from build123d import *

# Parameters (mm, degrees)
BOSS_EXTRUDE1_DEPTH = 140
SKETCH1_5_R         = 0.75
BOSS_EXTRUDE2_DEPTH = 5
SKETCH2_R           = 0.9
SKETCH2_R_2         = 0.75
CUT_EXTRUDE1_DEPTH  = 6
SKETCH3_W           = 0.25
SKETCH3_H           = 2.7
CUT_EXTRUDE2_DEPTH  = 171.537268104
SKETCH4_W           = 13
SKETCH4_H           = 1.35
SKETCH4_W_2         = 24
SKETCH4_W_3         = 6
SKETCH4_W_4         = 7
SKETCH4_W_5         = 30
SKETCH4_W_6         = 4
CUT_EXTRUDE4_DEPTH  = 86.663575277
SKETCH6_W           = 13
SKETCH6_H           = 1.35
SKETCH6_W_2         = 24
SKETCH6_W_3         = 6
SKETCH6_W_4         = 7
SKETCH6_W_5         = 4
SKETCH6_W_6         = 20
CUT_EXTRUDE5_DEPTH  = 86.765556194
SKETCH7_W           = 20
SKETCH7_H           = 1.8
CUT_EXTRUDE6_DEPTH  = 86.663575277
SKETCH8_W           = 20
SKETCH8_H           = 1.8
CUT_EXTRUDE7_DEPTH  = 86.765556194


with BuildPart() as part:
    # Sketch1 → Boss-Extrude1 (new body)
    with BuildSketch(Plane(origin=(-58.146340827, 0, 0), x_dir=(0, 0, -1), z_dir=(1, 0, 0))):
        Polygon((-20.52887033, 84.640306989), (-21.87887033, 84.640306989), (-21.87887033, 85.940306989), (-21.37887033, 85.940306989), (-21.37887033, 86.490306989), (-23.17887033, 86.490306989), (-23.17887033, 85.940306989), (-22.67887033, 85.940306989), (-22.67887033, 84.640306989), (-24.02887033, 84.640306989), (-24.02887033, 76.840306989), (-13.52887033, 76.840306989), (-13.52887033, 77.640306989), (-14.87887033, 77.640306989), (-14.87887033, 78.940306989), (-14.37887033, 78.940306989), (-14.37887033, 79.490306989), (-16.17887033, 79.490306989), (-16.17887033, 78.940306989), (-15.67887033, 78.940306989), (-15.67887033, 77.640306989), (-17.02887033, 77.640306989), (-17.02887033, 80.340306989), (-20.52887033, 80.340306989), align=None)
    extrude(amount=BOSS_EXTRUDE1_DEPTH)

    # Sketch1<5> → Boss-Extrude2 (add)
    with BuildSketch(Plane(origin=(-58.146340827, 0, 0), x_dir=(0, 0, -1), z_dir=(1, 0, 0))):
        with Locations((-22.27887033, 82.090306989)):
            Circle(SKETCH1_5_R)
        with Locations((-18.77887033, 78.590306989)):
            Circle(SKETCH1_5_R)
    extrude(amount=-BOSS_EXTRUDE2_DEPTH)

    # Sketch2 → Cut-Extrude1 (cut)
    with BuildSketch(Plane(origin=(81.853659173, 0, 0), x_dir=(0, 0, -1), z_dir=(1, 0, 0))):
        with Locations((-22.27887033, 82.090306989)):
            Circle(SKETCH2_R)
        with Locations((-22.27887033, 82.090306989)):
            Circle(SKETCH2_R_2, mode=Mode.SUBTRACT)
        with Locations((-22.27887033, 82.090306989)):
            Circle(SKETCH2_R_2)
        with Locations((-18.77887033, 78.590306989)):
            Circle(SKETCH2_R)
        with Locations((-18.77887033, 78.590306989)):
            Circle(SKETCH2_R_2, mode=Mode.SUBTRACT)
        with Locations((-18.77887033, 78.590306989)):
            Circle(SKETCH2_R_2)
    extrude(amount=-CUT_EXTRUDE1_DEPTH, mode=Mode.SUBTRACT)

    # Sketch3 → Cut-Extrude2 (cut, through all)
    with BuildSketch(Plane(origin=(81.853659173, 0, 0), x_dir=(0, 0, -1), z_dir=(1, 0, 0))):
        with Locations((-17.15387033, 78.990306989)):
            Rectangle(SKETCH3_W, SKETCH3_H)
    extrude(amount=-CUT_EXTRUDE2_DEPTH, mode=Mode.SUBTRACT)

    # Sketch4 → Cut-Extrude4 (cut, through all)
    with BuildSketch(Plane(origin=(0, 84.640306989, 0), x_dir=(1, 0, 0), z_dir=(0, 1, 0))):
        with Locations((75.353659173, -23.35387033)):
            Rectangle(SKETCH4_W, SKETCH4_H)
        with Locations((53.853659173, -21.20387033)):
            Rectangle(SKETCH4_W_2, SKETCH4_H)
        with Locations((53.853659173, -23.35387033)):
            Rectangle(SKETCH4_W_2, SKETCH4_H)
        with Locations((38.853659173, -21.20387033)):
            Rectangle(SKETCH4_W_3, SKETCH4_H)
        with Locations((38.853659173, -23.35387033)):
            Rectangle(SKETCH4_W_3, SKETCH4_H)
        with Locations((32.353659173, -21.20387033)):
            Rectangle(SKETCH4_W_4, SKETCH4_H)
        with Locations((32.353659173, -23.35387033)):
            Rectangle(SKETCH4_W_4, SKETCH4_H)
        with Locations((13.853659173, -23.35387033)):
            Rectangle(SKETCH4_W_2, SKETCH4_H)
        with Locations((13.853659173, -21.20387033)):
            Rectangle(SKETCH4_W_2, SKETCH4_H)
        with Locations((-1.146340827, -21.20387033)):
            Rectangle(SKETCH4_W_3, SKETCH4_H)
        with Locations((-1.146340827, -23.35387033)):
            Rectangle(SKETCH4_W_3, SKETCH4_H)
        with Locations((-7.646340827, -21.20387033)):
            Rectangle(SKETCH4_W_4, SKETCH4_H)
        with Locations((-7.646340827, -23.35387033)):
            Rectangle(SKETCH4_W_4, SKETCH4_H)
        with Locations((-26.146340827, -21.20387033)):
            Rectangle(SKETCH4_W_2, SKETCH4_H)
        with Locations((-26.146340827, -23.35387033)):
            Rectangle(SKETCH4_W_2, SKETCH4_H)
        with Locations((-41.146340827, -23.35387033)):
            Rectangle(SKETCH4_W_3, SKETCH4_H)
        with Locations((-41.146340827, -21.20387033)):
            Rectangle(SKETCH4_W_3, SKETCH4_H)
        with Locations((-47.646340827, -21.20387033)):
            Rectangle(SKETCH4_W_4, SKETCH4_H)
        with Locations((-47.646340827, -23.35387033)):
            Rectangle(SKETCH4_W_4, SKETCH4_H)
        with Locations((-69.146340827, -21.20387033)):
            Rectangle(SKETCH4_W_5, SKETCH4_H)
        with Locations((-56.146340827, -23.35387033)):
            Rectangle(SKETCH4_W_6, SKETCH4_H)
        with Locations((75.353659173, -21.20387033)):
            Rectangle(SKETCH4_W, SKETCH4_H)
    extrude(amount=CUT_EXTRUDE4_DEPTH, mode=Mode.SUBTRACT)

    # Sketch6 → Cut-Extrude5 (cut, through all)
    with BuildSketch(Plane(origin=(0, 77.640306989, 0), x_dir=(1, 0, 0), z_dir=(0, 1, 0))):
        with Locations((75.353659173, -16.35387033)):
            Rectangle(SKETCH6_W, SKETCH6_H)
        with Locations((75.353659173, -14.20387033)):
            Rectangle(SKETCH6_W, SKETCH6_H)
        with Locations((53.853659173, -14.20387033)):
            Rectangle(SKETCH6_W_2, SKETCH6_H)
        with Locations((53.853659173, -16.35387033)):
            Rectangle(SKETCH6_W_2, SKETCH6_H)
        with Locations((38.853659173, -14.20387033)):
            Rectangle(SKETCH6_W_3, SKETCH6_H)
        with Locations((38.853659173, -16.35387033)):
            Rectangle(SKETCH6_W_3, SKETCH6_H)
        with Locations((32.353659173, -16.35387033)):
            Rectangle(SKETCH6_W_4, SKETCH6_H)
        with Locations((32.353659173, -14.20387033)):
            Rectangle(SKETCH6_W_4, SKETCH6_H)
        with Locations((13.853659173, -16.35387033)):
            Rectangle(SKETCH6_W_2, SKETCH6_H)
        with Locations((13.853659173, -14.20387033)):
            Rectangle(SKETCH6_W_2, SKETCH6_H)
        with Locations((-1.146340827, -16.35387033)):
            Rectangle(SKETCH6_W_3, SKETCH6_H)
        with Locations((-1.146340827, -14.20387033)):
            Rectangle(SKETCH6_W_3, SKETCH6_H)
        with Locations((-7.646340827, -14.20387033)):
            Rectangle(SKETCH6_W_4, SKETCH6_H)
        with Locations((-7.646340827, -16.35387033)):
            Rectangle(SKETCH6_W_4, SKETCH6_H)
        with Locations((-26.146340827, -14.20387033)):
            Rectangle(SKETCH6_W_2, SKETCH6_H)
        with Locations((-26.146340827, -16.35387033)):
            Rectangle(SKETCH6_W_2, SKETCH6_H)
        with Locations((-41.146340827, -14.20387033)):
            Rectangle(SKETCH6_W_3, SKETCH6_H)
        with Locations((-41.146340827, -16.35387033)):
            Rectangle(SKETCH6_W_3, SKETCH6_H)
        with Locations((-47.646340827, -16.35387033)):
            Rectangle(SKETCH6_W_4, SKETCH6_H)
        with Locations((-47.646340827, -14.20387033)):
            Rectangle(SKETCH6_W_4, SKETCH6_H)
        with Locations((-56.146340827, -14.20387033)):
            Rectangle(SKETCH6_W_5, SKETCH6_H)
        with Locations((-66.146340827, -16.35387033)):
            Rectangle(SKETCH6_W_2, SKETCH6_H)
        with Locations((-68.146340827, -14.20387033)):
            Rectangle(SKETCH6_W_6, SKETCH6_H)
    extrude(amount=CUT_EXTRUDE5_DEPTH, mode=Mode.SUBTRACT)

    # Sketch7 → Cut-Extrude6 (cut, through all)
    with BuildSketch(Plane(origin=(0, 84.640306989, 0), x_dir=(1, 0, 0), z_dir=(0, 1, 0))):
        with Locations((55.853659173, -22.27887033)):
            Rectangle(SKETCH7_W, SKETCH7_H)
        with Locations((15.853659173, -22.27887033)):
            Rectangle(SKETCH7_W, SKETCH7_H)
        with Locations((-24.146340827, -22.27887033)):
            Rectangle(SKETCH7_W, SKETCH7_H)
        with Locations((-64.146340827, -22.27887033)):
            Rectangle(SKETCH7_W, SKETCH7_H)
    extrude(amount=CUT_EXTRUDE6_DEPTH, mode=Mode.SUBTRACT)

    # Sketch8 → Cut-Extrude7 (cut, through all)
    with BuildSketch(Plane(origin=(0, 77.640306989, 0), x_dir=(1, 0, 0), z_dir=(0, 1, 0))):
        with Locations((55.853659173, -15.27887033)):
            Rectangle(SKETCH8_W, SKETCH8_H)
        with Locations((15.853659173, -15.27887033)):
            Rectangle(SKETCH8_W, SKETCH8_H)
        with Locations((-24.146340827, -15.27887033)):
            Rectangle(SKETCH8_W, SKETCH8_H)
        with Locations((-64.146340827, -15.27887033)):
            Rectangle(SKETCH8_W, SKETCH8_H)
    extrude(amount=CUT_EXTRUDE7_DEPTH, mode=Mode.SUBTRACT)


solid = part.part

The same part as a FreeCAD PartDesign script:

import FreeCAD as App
import Part
import Sketcher

V = App.Vector
Q = App.Units.Quantity

doc = App.newDocument("Part")
body = doc.addObject("PartDesign::Body", "Body")

sketch1 = body.newObject("Sketcher::SketchObject", "Sketch")
sketch1.AttachmentSupport = (doc.getObject("YZ_Plane"), [""])
sketch1.MapMode = "FlatFace"
sketch1.AttachmentOffset = App.Placement(V(0, 0, -58.146341), App.Rotation())
sketch1.addGeometry(Part.LineSegment(V(84.64, 20.53, 0), V(84.64, 21.88, 0)), False)
sketch1.addGeometry(Part.LineSegment(V(84.64, 21.88, 0), V(85.94, 21.88, 0)), False)
sketch1.addGeometry(Part.LineSegment(V(85.94, 21.88, 0), V(85.94, 21.38, 0)), False)
sketch1.addGeometry(Part.LineSegment(V(85.94, 21.38, 0), V(86.49, 21.38, 0)), False)
sketch1.addGeometry(Part.LineSegment(V(86.49, 21.38, 0), V(86.49, 23.18, 0)), False)
sketch1.addGeometry(Part.LineSegment(V(86.49, 23.18, 0), V(85.94, 23.18, 0)), False)
sketch1.addGeometry(Part.LineSegment(V(85.94, 23.18, 0), V(85.94, 22.68, 0)), False)
sketch1.addGeometry(Part.LineSegment(V(85.94, 22.68, 0), V(84.64, 22.68, 0)), False)
sketch1.addGeometry(Part.LineSegment(V(84.64, 22.68, 0), V(84.64, 24.03, 0)), False)
sketch1.addGeometry(Part.LineSegment(V(84.64, 24.03, 0), V(76.84, 24.03, 0)), False)
sketch1.addGeometry(Part.LineSegment(V(76.84, 24.03, 0), V(76.84, 13.53, 0)), False)
sketch1.addGeometry(Part.LineSegment(V(76.84, 13.53, 0), V(77.64, 13.53, 0)), False)
sketch1.addGeometry(Part.LineSegment(V(77.64, 13.53, 0), V(77.64, 14.88, 0)), False)
sketch1.addGeometry(Part.LineSegment(V(77.64, 14.88, 0), V(78.94, 14.88, 0)), False)
sketch1.addGeometry(Part.LineSegment(V(78.94, 14.88, 0), V(78.94, 14.38, 0)), False)
sketch1.addGeometry(Part.LineSegment(V(78.94, 14.38, 0), V(79.49, 14.38, 0)), False)
sketch1.addGeometry(Part.LineSegment(V(79.49, 14.38, 0), V(79.49, 16.18, 0)), False)
sketch1.addGeometry(Part.LineSegment(V(79.49, 16.18, 0), V(78.94, 16.18, 0)), False)
sketch1.addGeometry(Part.LineSegment(V(78.94, 16.18, 0), V(78.94, 15.68, 0)), False)
sketch1.addGeometry(Part.LineSegment(V(78.94, 15.68, 0), V(77.64, 15.68, 0)), False)
sketch1.addGeometry(Part.LineSegment(V(77.64, 15.68, 0), V(77.64, 17.03, 0)), False)
sketch1.addGeometry(Part.LineSegment(V(77.64, 17.03, 0), V(80.34, 17.03, 0)), False)
sketch1.addGeometry(Part.LineSegment(V(80.34, 17.03, 0), V(80.34, 20.53, 0)), False)
sketch1.addGeometry(Part.LineSegment(V(80.34, 20.53, 0), V(84.64, 20.53, 0)), False)
sketch1.addConstraint(Sketcher.Constraint("Coincident", 0, 2, 1, 1))
sketch1.addConstraint(Sketcher.Constraint("Coincident", 1, 2, 2, 1))
sketch1.addConstraint(Sketcher.Constraint("Coincident", 2, 2, 3, 1))
sketch1.addConstraint(Sketcher.Constraint("Coincident", 3, 2, 4, 1))
sketch1.addConstraint(Sketcher.Constraint("Coincident", 4, 2, 5, 1))
sketch1.addConstraint(Sketcher.Constraint("Coincident", 5, 2, 6, 1))
sketch1.addConstraint(Sketcher.Constraint("Coincident", 6, 2, 7, 1))
sketch1.addConstraint(Sketcher.Constraint("Coincident", 7, 2, 8, 1))
sketch1.addConstraint(Sketcher.Constraint("Coincident", 8, 2, 9, 1))
sketch1.addConstraint(Sketcher.Constraint("Coincident", 9, 2, 10, 1))
sketch1.addConstraint(Sketcher.Constraint("Coincident", 10, 2, 11, 1))
sketch1.addConstraint(Sketcher.Constraint("Coincident", 11, 2, 12, 1))
sketch1.addConstraint(Sketcher.Constraint("Coincident", 12, 2, 13, 1))
sketch1.addConstraint(Sketcher.Constraint("Coincident", 13, 2, 14, 1))
sketch1.addConstraint(Sketcher.Constraint("Coincident", 14, 2, 15, 1))
sketch1.addConstraint(Sketcher.Constraint("Coincident", 15, 2, 16, 1))
sketch1.addConstraint(Sketcher.Constraint("Coincident", 16, 2, 17, 1))
sketch1.addConstraint(Sketcher.Constraint("Coincident", 17, 2, 18, 1))
sketch1.addConstraint(Sketcher.Constraint("Coincident", 18, 2, 19, 1))
sketch1.addConstraint(Sketcher.Constraint("Coincident", 19, 2, 20, 1))
sketch1.addConstraint(Sketcher.Constraint("Coincident", 20, 2, 21, 1))
sketch1.addConstraint(Sketcher.Constraint("Coincident", 21, 2, 22, 1))
sketch1.addConstraint(Sketcher.Constraint("Coincident", 22, 2, 23, 1))
sketch1.addConstraint(Sketcher.Constraint("Coincident", 23, 2, 0, 1))
sketch1.addConstraint(Sketcher.Constraint("Vertical", 0))
sketch1.addConstraint(Sketcher.Constraint("Horizontal", 1))
sketch1.addConstraint(Sketcher.Constraint("Vertical", 2))
sketch1.addConstraint(Sketcher.Constraint("Horizontal", 3))
sketch1.addConstraint(Sketcher.Constraint("Vertical", 4))
sketch1.addConstraint(Sketcher.Constraint("Horizontal", 5))
sketch1.addConstraint(Sketcher.Constraint("Vertical", 6))
sketch1.addConstraint(Sketcher.Constraint("Horizontal", 7))
sketch1.addConstraint(Sketcher.Constraint("Vertical", 8))
sketch1.addConstraint(Sketcher.Constraint("Horizontal", 9))
sketch1.addConstraint(Sketcher.Constraint("Vertical", 10))
sketch1.addConstraint(Sketcher.Constraint("Horizontal", 11))
sketch1.addConstraint(Sketcher.Constraint("Vertical", 12))
sketch1.addConstraint(Sketcher.Constraint("Horizontal", 13))
sketch1.addConstraint(Sketcher.Constraint("Vertical", 14))
sketch1.addConstraint(Sketcher.Constraint("Horizontal", 15))
sketch1.addConstraint(Sketcher.Constraint("Vertical", 16))
sketch1.addConstraint(Sketcher.Constraint("Horizontal", 17))
sketch1.addConstraint(Sketcher.Constraint("Vertical", 18))
sketch1.addConstraint(Sketcher.Constraint("Horizontal", 19))
sketch1.addConstraint(Sketcher.Constraint("Vertical", 20))
sketch1.addConstraint(Sketcher.Constraint("Horizontal", 21))
sketch1.addConstraint(Sketcher.Constraint("Vertical", 22))
sketch1.addConstraint(Sketcher.Constraint("Horizontal", 23))
sketch1.addConstraint(Sketcher.Constraint("Vertical", 2, 2, 5, 2))
sketch1.addConstraint(Sketcher.Constraint("Vertical", 0, 2, 7, 2))
sketch1.addConstraint(Sketcher.Constraint("Vertical", 14, 2, 17, 2))
sketch1.addConstraint(Sketcher.Constraint("Vertical", 12, 2, 19, 2))
sketch1.addConstraint(Sketcher.Constraint("Equal", 7, 13))
sketch1.addConstraint(Sketcher.Constraint("Equal", 5, 15))
sketch1.addConstraint(Sketcher.Constraint("Equal", 2, 6))
sketch1.addConstraint(Sketcher.Constraint("Equal", 0, 8))
sketch1.addConstraint(Sketcher.Constraint("Equal", 8, 12))
sketch1.addConstraint(Sketcher.Constraint("Equal", 6, 14))
sketch1.addConstraint(Sketcher.Constraint("Equal", 4, 16))
sketch1.addConstraint(Sketcher.Constraint("Equal", 14, 18))
sketch1.addConstraint(Sketcher.Constraint("Equal", 12, 20))
sketch1.addConstraint(Sketcher.Constraint("DistanceX", 1, 1, 1, 2, Q("1.3 mm")))
sketch1.addConstraint(Sketcher.Constraint("DistanceX", 9, 2, 9, 1, Q("7.8 mm")))
sketch1.addConstraint(Sketcher.Constraint("DistanceX", 11, 1, 11, 2, Q("0.8 mm")))
sketch1.addConstraint(Sketcher.Constraint("DistanceX", 21, 1, 21, 2, Q("2.7 mm")))
sketch1.addConstraint(Sketcher.Constraint("DistanceY", 2, 2, 2, 1, Q("0.5 mm")))
sketch1.addConstraint(Sketcher.Constraint("DistanceY", 4, 1, 4, 2, Q("1.8 mm")))
sketch1.addConstraint(Sketcher.Constraint("DistanceY", 10, 2, 10, 1, Q("10.5 mm")))
sketch1.addConstraint(Sketcher.Constraint("DistanceY", 22, 1, 22, 2, Q("3.5 mm")))
sketch1.addConstraint(Sketcher.Constraint("DistanceX", 3, 1, 3, 2, Q("0.55 mm")))
sketch1.addConstraint(Sketcher.Constraint("DistanceY", -1, 1, 0, 2, Q("21.87887 mm")))
sketch1.addConstraint(Sketcher.Constraint("DistanceX", -1, 1, 0, 2, Q("84.640307 mm")))
pad1 = body.newObject("PartDesign::Pad", "Pad")
pad1.Profile = sketch1
pad1.Length = 140

sketch2 = body.newObject("Sketcher::SketchObject", "Sketch001")
sketch2.AttachmentSupport = (doc.getObject("YZ_Plane"), [""])
sketch2.MapMode = "FlatFace"
sketch2.AttachmentOffset = App.Placement(V(0, 0, -58.146341), App.Rotation())
sketch2.addGeometry(Part.Circle(V(82.1, 22.3, 0), V(0, 0, 1), 0.8), False)
sketch2.addGeometry(Part.Circle(V(78.6, 18.8, 0), V(0, 0, 1), 0.8), False)
sketch2.addConstraint(Sketcher.Constraint("Equal", 0, 1))
sketch2.addConstraint(Sketcher.Constraint("Diameter", 0, Q("1.5 mm")))
sketch2.addConstraint(Sketcher.Constraint("DistanceX", 1, 3, 0, 3, Q("3.5 mm")))
sketch2.addConstraint(Sketcher.Constraint("DistanceY", 1, 3, 0, 3, Q("3.5 mm")))
sketch2.addConstraint(Sketcher.Constraint("DistanceY", -1, 1, 0, 3, Q("22.27887 mm")))
sketch2.addConstraint(Sketcher.Constraint("DistanceX", -1, 1, 0, 3, Q("82.090307 mm")))
pad2 = body.newObject("PartDesign::Pad", "Pad001")
pad2.Profile = sketch2
pad2.Length = 5
pad2.Reversed = True

sketch3 = body.newObject("Sketcher::SketchObject", "Sketch002")
sketch3.AttachmentSupport = (doc.getObject("YZ_Plane"), [""])
sketch3.MapMode = "FlatFace"
sketch3.AttachmentOffset = App.Placement(V(0, 0, 81.853659), App.Rotation())
sketch3.addGeometry(Part.Circle(V(82.1, 22.3, 0), V(0, 0, 1), 0.9), False)
sketch3.addGeometry(Part.Circle(V(78.6, 18.8, 0), V(0, 0, 1), 0.9), False)
sketch3.addConstraint(Sketcher.Constraint("Equal", 0, 1))
sketch3.addConstraint(Sketcher.Constraint("Diameter", 0, Q("1.8 mm")))
sketch3.addConstraint(Sketcher.Constraint("DistanceX", 1, 3, 0, 3, Q("3.5 mm")))
sketch3.addConstraint(Sketcher.Constraint("DistanceY", 1, 3, 0, 3, Q("3.5 mm")))
sketch3.addConstraint(Sketcher.Constraint("DistanceY", -1, 1, 0, 3, Q("22.27887 mm")))
sketch3.addConstraint(Sketcher.Constraint("DistanceX", -1, 1, 0, 3, Q("82.090307 mm")))
pocket1 = body.newObject("PartDesign::Pocket", "Pocket")
pocket1.Profile = sketch3
pocket1.Length = 6

sketch4 = body.newObject("Sketcher::SketchObject", "Sketch003")
sketch4.AttachmentSupport = (doc.getObject("YZ_Plane"), [""])
sketch4.MapMode = "FlatFace"
sketch4.AttachmentOffset = App.Placement(V(0, 0, 81.853659), App.Rotation())
sketch4.addGeometry(Part.LineSegment(V(80.34, 17.28, 0), V(77.64, 17.28, 0)), False)
sketch4.addGeometry(Part.LineSegment(V(77.64, 17.28, 0), V(77.64, 17.03, 0)), False)
sketch4.addGeometry(Part.LineSegment(V(77.64, 17.03, 0), V(80.34, 17.03, 0)), False)
sketch4.addGeometry(Part.LineSegment(V(80.34, 17.03, 0), V(80.34, 17.28, 0)), False)
sketch4.addConstraint(Sketcher.Constraint("Coincident", 0, 2, 1, 1))
sketch4.addConstraint(Sketcher.Constraint("Coincident", 1, 2, 2, 1))
sketch4.addConstraint(Sketcher.Constraint("Coincident", 2, 2, 3, 1))
sketch4.addConstraint(Sketcher.Constraint("Coincident", 3, 2, 0, 1))
sketch4.addConstraint(Sketcher.Constraint("Horizontal", 0))
sketch4.addConstraint(Sketcher.Constraint("Vertical", 1))
sketch4.addConstraint(Sketcher.Constraint("Horizontal", 2))
sketch4.addConstraint(Sketcher.Constraint("Vertical", 3))
sketch4.addConstraint(Sketcher.Constraint("DistanceX", 0, 2, 0, 1, Q("2.7 mm")))
sketch4.addConstraint(Sketcher.Constraint("DistanceY", 1, 2, 1, 1, Q("0.25 mm")))
sketch4.addConstraint(Sketcher.Constraint("DistanceY", -1, 1, 0, 2, Q("17.27887 mm")))
sketch4.addConstraint(Sketcher.Constraint("DistanceX", -1, 1, 0, 2, Q("77.640307 mm")))
pocket2 = body.newObject("PartDesign::Pocket", "Pocket001")
pocket2.Profile = sketch4
pocket2.Type = "ThroughAll"

sketch5 = body.newObject("Sketcher::SketchObject", "Sketch004")
sketch5.AttachmentSupport = (doc.getObject("XZ_Plane"), [""])
sketch5.MapMode = "FlatFace"
sketch5.AttachmentOffset = App.Placement(V(0, 0, -84.640307), App.Rotation())
sketch5.addGeometry(Part.LineSegment(V(68.9, 22.7, 0), V(68.9, 24, 0)), False)
sketch5.addGeometry(Part.LineSegment(V(68.9, 24, 0), V(81.9, 24, 0)), False)
sketch5.addGeometry(Part.LineSegment(V(81.9, 24, 0), V(81.9, 22.7, 0)), False)
sketch5.addGeometry(Part.LineSegment(V(81.9, 22.7, 0), V(68.9, 22.7, 0)), False)
sketch5.addGeometry(Part.LineSegment(V(65.9, 21.9, 0), V(65.9, 20.5, 0)), False)
sketch5.addGeometry(Part.LineSegment(V(65.9, 20.5, 0), V(28.9, 20.5, 0)), False)
sketch5.addGeometry(Part.LineSegment(V(28.9, 20.5, 0), V(28.9, 21.9, 0)), False)
sketch5.addGeometry(Part.LineSegment(V(28.9, 21.9, 0), V(65.9, 21.9, 0)), False)
sketch5.addGeometry(Part.LineSegment(V(65.9, 24, 0), V(65.9, 22.7, 0)), False)
sketch5.addGeometry(Part.LineSegment(V(65.9, 22.7, 0), V(28.9, 22.7, 0)), False)
sketch5.addGeometry(Part.LineSegment(V(28.9, 22.7, 0), V(28.9, 24, 0)), False)
sketch5.addGeometry(Part.LineSegment(V(28.9, 24, 0), V(65.9, 24, 0)), False)
sketch5.addGeometry(Part.LineSegment(V(25.9, 24, 0), V(25.9, 22.7, 0)), False)
sketch5.addGeometry(Part.LineSegment(V(25.9, 22.7, 0), V(-11.1, 22.7, 0)), False)
sketch5.addGeometry(Part.LineSegment(V(-11.1, 22.7, 0), V(-11.1, 24, 0)), False)
sketch5.addGeometry(Part.LineSegment(V(-11.1, 24, 0), V(25.9, 24, 0)), False)
sketch5.addGeometry(Part.LineSegment(V(25.9, 21.9, 0), V(25.9, 20.5, 0)), False)
sketch5.addGeometry(Part.LineSegment(V(25.9, 20.5, 0), V(-11.1, 20.5, 0)), False)
sketch5.addGeometry(Part.LineSegment(V(-11.1, 20.5, 0), V(-11.1, 21.9, 0)), False)
sketch5.addGeometry(Part.LineSegment(V(-11.1, 21.9, 0), V(25.9, 21.9, 0)), False)
sketch5.addGeometry(Part.LineSegment(V(-14.1, 21.9, 0), V(-14.1, 20.5, 0)), False)
sketch5.addGeometry(Part.LineSegment(V(-14.1, 20.5, 0), V(-51.1, 20.5, 0)), False)
sketch5.addGeometry(Part.LineSegment(V(-51.1, 20.5, 0), V(-51.1, 21.9, 0)), False)
sketch5.addGeometry(Part.LineSegment(V(-51.1, 21.9, 0), V(-14.1, 21.9, 0)), False)
sketch5.addGeometry(Part.LineSegment(V(-14.1, 24, 0), V(-14.1, 22.7, 0)), False)
sketch5.addGeometry(Part.LineSegment(V(-14.1, 22.7, 0), V(-51.1, 22.7, 0)), False)
sketch5.addGeometry(Part.LineSegment(V(-51.1, 22.7, 0), V(-51.1, 24, 0)), False)
sketch5.addGeometry(Part.LineSegment(V(-51.1, 24, 0), V(-14.1, 24, 0)), False)
sketch5.addGeometry(Part.LineSegment(V(-84.1, 20.5, 0), V(-84.1, 21.9, 0)), False)
sketch5.addGeometry(Part.LineSegment(V(-84.1, 21.9, 0), V(-54.1, 21.9, 0)), False)
sketch5.addGeometry(Part.LineSegment(V(-54.1, 21.9, 0), V(-54.1, 20.5, 0)), False)
sketch5.addGeometry(Part.LineSegment(V(-54.1, 20.5, 0), V(-84.1, 20.5, 0)), False)
sketch5.addGeometry(Part.LineSegment(V(-58.1, 22.7, 0), V(-58.1, 24, 0)), False)
sketch5.addGeometry(Part.LineSegment(V(-58.1, 24, 0), V(-54.1, 24, 0)), False)
sketch5.addGeometry(Part.LineSegment(V(-54.1, 24, 0), V(-54.1, 22.7, 0)), False)
sketch5.addGeometry(Part.LineSegment(V(-54.1, 22.7, 0), V(-58.1, 22.7, 0)), False)
sketch5.addGeometry(Part.LineSegment(V(68.9, 20.5, 0), V(68.9, 21.9, 0)), False)
sketch5.addGeometry(Part.LineSegment(V(68.9, 21.9, 0), V(81.9, 21.9, 0)), False)
sketch5.addGeometry(Part.LineSegment(V(81.9, 21.9, 0), V(81.9, 20.5, 0)), False)
sketch5.addGeometry(Part.LineSegment(V(81.9, 20.5, 0), V(68.9, 20.5, 0)), False)
sketch5.addConstraint(Sketcher.Constraint("Coincident", 0, 2, 1, 1))
sketch5.addConstraint(Sketcher.Constraint("Coincident", 1, 2, 2, 1))
sketch5.addConstraint(Sketcher.Constraint("Coincident", 2, 2, 3, 1))
sketch5.addConstraint(Sketcher.Constraint("Coincident", 3, 2, 0, 1))
sketch5.addConstraint(Sketcher.Constraint("Coincident", 4, 2, 5, 1))
sketch5.addConstraint(Sketcher.Constraint("Coincident", 5, 2, 6, 1))
sketch5.addConstraint(Sketcher.Constraint("Coincident", 6, 2, 7, 1))
sketch5.addConstraint(Sketcher.Constraint("Coincident", 7, 2, 4, 1))
sketch5.addConstraint(Sketcher.Constraint("Coincident", 8, 2, 9, 1))
sketch5.addConstraint(Sketcher.Constraint("Coincident", 9, 2, 10, 1))
sketch5.addConstraint(Sketcher.Constraint("Coincident", 10, 2, 11, 1))
sketch5.addConstraint(Sketcher.Constraint("Coincident", 11, 2, 8, 1))
sketch5.addConstraint(Sketcher.Constraint("Coincident", 12, 2, 13, 1))
sketch5.addConstraint(Sketcher.Constraint("Coincident", 13, 2, 14, 1))
sketch5.addConstraint(Sketcher.Constraint("Coincident", 14, 2, 15, 1))
sketch5.addConstraint(Sketcher.Constraint("Coincident", 15, 2, 12, 1))
sketch5.addConstraint(Sketcher.Constraint("Coincident", 16, 2, 17, 1))
sketch5.addConstraint(Sketcher.Constraint("Coincident", 17, 2, 18, 1))
sketch5.addConstraint(Sketcher.Constraint("Coincident", 18, 2, 19, 1))
sketch5.addConstraint(Sketcher.Constraint("Coincident", 19, 2, 16, 1))
sketch5.addConstraint(Sketcher.Constraint("Coincident", 20, 2, 21, 1))
sketch5.addConstraint(Sketcher.Constraint("Coincident", 21, 2, 22, 1))
sketch5.addConstraint(Sketcher.Constraint("Coincident", 22, 2, 23, 1))
sketch5.addConstraint(Sketcher.Constraint("Coincident", 23, 2, 20, 1))
sketch5.addConstraint(Sketcher.Constraint("Coincident", 24, 2, 25, 1))
sketch5.addConstraint(Sketcher.Constraint("Coincident", 25, 2, 26, 1))
sketch5.addConstraint(Sketcher.Constraint("Coincident", 26, 2, 27, 1))
sketch5.addConstraint(Sketcher.Constraint("Coincident", 27, 2, 24, 1))
sketch5.addConstraint(Sketcher.Constraint("Coincident", 28, 2, 29, 1))
sketch5.addConstraint(Sketcher.Constraint("Coincident", 29, 2, 30, 1))
sketch5.addConstraint(Sketcher.Constraint("Coincident", 30, 2, 31, 1))
sketch5.addConstraint(Sketcher.Constraint("Coincident", 31, 2, 28, 1))
sketch5.addConstraint(Sketcher.Constraint("Coincident", 32, 2, 33, 1))
sketch5.addConstraint(Sketcher.Constraint("Coincident", 33, 2, 34, 1))
sketch5.addConstraint(Sketcher.Constraint("Coincident", 34, 2, 35, 1))
sketch5.addConstraint(Sketcher.Constraint("Coincident", 35, 2, 32, 1))
sketch5.addConstraint(Sketcher.Constraint("Coincident", 36, 2, 37, 1))
sketch5.addConstraint(Sketcher.Constraint("Coincident", 37, 2, 38, 1))
sketch5.addConstraint(Sketcher.Constraint("Coincident", 38, 2, 39, 1))
sketch5.addConstraint(Sketcher.Constraint("Coincident", 39, 2, 36, 1))
sketch5.addConstraint(Sketcher.Constraint("Vertical", 0))
sketch5.addConstraint(Sketcher.Constraint("Horizontal", 1))
sketch5.addConstraint(Sketcher.Constraint("Vertical", 2))
sketch5.addConstraint(Sketcher.Constraint("Horizontal", 3))
sketch5.addConstraint(Sketcher.Constraint("Vertical", 4))
sketch5.addConstraint(Sketcher.Constraint("Horizontal", 5))
sketch5.addConstraint(Sketcher.Constraint("Vertical", 6))
sketch5.addConstraint(Sketcher.Constraint("Horizontal", 7))
sketch5.addConstraint(Sketcher.Constraint("Vertical", 8))
sketch5.addConstraint(Sketcher.Constraint("Horizontal", 9))
sketch5.addConstraint(Sketcher.Constraint("Vertical", 10))
sketch5.addConstraint(Sketcher.Constraint("Horizontal", 11))
sketch5.addConstraint(Sketcher.Constraint("Vertical", 12))
sketch5.addConstraint(Sketcher.Constraint("Horizontal", 13))
sketch5.addConstraint(Sketcher.Constraint("Vertical", 14))
sketch5.addConstraint(Sketcher.Constraint("Horizontal", 15))
sketch5.addConstraint(Sketcher.Constraint("Vertical", 16))
sketch5.addConstraint(Sketcher.Constraint("Horizontal", 17))
sketch5.addConstraint(Sketcher.Constraint("Vertical", 18))
sketch5.addConstraint(Sketcher.Constraint("Horizontal", 19))
sketch5.addConstraint(Sketcher.Constraint("Vertical", 20))
sketch5.addConstraint(Sketcher.Constraint("Horizontal", 21))
sketch5.addConstraint(Sketcher.Constraint("Vertical", 22))
sketch5.addConstraint(Sketcher.Constraint("Horizontal", 23))
sketch5.addConstraint(Sketcher.Constraint("Vertical", 24))
sketch5.addConstraint(Sketcher.Constraint("Horizontal", 25))
sketch5.addConstraint(Sketcher.Constraint("Vertical", 26))
sketch5.addConstraint(Sketcher.Constraint("Horizontal", 27))
sketch5.addConstraint(Sketcher.Constraint("Vertical", 28))
sketch5.addConstraint(Sketcher.Constraint("Horizontal", 29))
sketch5.addConstraint(Sketcher.Constraint("Vertical", 30))
sketch5.addConstraint(Sketcher.Constraint("Horizontal", 31))
sketch5.addConstraint(Sketcher.Constraint("Vertical", 32))
sketch5.addConstraint(Sketcher.Constraint("Horizontal", 33))
sketch5.addConstraint(Sketcher.Constraint("Vertical", 34))
sketch5.addConstraint(Sketcher.Constraint("Horizontal", 35))
sketch5.addConstraint(Sketcher.Constraint("Vertical", 36))
sketch5.addConstraint(Sketcher.Constraint("Horizontal", 37))
sketch5.addConstraint(Sketcher.Constraint("Vertical", 38))
sketch5.addConstraint(Sketcher.Constraint("Horizontal", 39))
sketch5.addConstraint(Sketcher.Constraint("Horizontal", 3, 2, 8, 2))
sketch5.addConstraint(Sketcher.Constraint("Horizontal", 1, 2, 10, 2))
sketch5.addConstraint(Sketcher.Constraint("Horizontal", 9, 2, 12, 2))
sketch5.addConstraint(Sketcher.Constraint("Horizontal", 11, 2, 14, 2))
sketch5.addConstraint(Sketcher.Constraint("Horizontal", 5, 2, 16, 2))
sketch5.addConstraint(Sketcher.Constraint("Horizontal", 7, 2, 18, 2))
sketch5.addConstraint(Sketcher.Constraint("Horizontal", 17, 2, 20, 2))
sketch5.addConstraint(Sketcher.Constraint("Horizontal", 19, 2, 22, 2))
sketch5.addConstraint(Sketcher.Constraint("Horizontal", 13, 2, 24, 2))
sketch5.addConstraint(Sketcher.Constraint("Horizontal", 15, 2, 26, 2))
sketch5.addConstraint(Sketcher.Constraint("Horizontal", 23, 2, 28, 2))
sketch5.addConstraint(Sketcher.Constraint("Horizontal", 21, 2, 30, 2))
sketch5.addConstraint(Sketcher.Constraint("Horizontal", 27, 2, 32, 2))
sketch5.addConstraint(Sketcher.Constraint("Horizontal", 25, 2, 34, 2))
sketch5.addConstraint(Sketcher.Constraint("Horizontal", 29, 2, 36, 2))
sketch5.addConstraint(Sketcher.Constraint("Horizontal", 31, 2, 38, 2))
sketch5.addConstraint(Sketcher.Constraint("Vertical", 7, 2, 8, 2))
sketch5.addConstraint(Sketcher.Constraint("Vertical", 6, 2, 9, 2))
sketch5.addConstraint(Sketcher.Constraint("Vertical", 15, 2, 16, 2))
sketch5.addConstraint(Sketcher.Constraint("Vertical", 14, 2, 17, 2))
sketch5.addConstraint(Sketcher.Constraint("Vertical", 23, 2, 24, 2))
sketch5.addConstraint(Sketcher.Constraint("Vertical", 22, 2, 25, 2))
sketch5.addConstraint(Sketcher.Constraint("Vertical", 30, 2, 33, 2))
sketch5.addConstraint(Sketcher.Constraint("Vertical", 3, 2, 36, 2))
sketch5.addConstraint(Sketcher.Constraint("Vertical", 2, 2, 37, 2))
sketch5.addConstraint(Sketcher.Constraint("Equal", 11, 13))
sketch5.addConstraint(Sketcher.Constraint("Equal", 19, 21))
sketch5.addConstraint(Sketcher.Constraint("Equal", 2, 4))
sketch5.addConstraint(Sketcher.Constraint("DistanceX", 1, 1, 1, 2, Q("13 mm")))
sketch5.addConstraint(Sketcher.Constraint("DistanceX", 5, 2, 5, 1, Q("37 mm")))
sketch5.addConstraint(Sketcher.Constraint("DistanceX", 29, 1, 29, 2, Q("30 mm")))
sketch5.addConstraint(Sketcher.Constraint("DistanceX", 33, 1, 33, 2, Q("4 mm")))
sketch5.addConstraint(Sketcher.Constraint("DistanceX", 4, 2, 3, 2, Q("3 mm")))
sketch5.addConstraint(Sketcher.Constraint("DistanceX", 12, 2, 9, 2, Q("3 mm")))
sketch5.addConstraint(Sketcher.Constraint("DistanceX", 20, 2, 17, 2, Q("3 mm")))
sketch5.addConstraint(Sketcher.Constraint("DistanceX", 28, 2, 22, 2, Q("33 mm")))
sketch5.addConstraint(Sketcher.Constraint("DistanceY", 0, 1, 0, 2, Q("1.35 mm")))
sketch5.addConstraint(Sketcher.Constraint("DistanceY", 4, 2, 0, 2, Q("3.5 mm")))
sketch5.addConstraint(Sketcher.Constraint("DistanceX", -1, 1, 0, 2, Q("68.853659 mm")))
sketch5.addConstraint(Sketcher.Constraint("DistanceY", -1, 1, 0, 2, Q("24.02887 mm")))
pocket3 = body.newObject("PartDesign::Pocket", "Pocket002")
pocket3.Profile = sketch5
pocket3.Type = "ThroughAll"

sketch6 = body.newObject("Sketcher::SketchObject", "Sketch005")
sketch6.AttachmentSupport = (doc.getObject("XZ_Plane"), [""])
sketch6.MapMode = "FlatFace"
sketch6.AttachmentOffset = App.Placement(V(0, 0, -77.640307), App.Rotation())
sketch6.addGeometry(Part.LineSegment(V(68.9, 15.7, 0), V(68.9, 17, 0)), False)
sketch6.addGeometry(Part.LineSegment(V(68.9, 17, 0), V(81.9, 17, 0)), False)
sketch6.addGeometry(Part.LineSegment(V(81.9, 17, 0), V(81.9, 15.7, 0)), False)
sketch6.addGeometry(Part.LineSegment(V(81.9, 15.7, 0), V(68.9, 15.7, 0)), False)
sketch6.addGeometry(Part.LineSegment(V(68.9, 13.5, 0), V(68.9, 14.9, 0)), False)
sketch6.addGeometry(Part.LineSegment(V(68.9, 14.9, 0), V(81.9, 14.9, 0)), False)
sketch6.addGeometry(Part.LineSegment(V(81.9, 14.9, 0), V(81.9, 13.5, 0)), False)
sketch6.addGeometry(Part.LineSegment(V(81.9, 13.5, 0), V(68.9, 13.5, 0)), False)
sketch6.addGeometry(Part.LineSegment(V(65.9, 14.9, 0), V(65.9, 13.5, 0)), False)
sketch6.addGeometry(Part.LineSegment(V(65.9, 13.5, 0), V(28.9, 13.5, 0)), False)
sketch6.addGeometry(Part.LineSegment(V(28.9, 13.5, 0), V(28.9, 14.9, 0)), False)
sketch6.addGeometry(Part.LineSegment(V(28.9, 14.9, 0), V(65.9, 14.9, 0)), False)
sketch6.addGeometry(Part.LineSegment(V(65.9, 17, 0), V(65.9, 15.7, 0)), False)
sketch6.addGeometry(Part.LineSegment(V(65.9, 15.7, 0), V(28.9, 15.7, 0)), False)
sketch6.addGeometry(Part.LineSegment(V(28.9, 15.7, 0), V(28.9, 17, 0)), False)
sketch6.addGeometry(Part.LineSegment(V(28.9, 17, 0), V(65.9, 17, 0)), False)
sketch6.addGeometry(Part.LineSegment(V(25.9, 17, 0), V(25.9, 15.7, 0)), False)
sketch6.addGeometry(Part.LineSegment(V(25.9, 15.7, 0), V(-11.1, 15.7, 0)), False)
sketch6.addGeometry(Part.LineSegment(V(-11.1, 15.7, 0), V(-11.1, 17, 0)), False)
sketch6.addGeometry(Part.LineSegment(V(-11.1, 17, 0), V(25.9, 17, 0)), False)
sketch6.addGeometry(Part.LineSegment(V(25.9, 14.9, 0), V(25.9, 13.5, 0)), False)
sketch6.addGeometry(Part.LineSegment(V(25.9, 13.5, 0), V(-11.1, 13.5, 0)), False)
sketch6.addGeometry(Part.LineSegment(V(-11.1, 13.5, 0), V(-11.1, 14.9, 0)), False)
sketch6.addGeometry(Part.LineSegment(V(-11.1, 14.9, 0), V(25.9, 14.9, 0)), False)
sketch6.addGeometry(Part.LineSegment(V(-14.1, 14.9, 0), V(-14.1, 13.5, 0)), False)
sketch6.addGeometry(Part.LineSegment(V(-14.1, 13.5, 0), V(-51.1, 13.5, 0)), False)
sketch6.addGeometry(Part.LineSegment(V(-51.1, 13.5, 0), V(-51.1, 14.9, 0)), False)
sketch6.addGeometry(Part.LineSegment(V(-51.1, 14.9, 0), V(-14.1, 14.9, 0)), False)
sketch6.addGeometry(Part.LineSegment(V(-14.1, 17, 0), V(-14.1, 15.7, 0)), False)
sketch6.addGeometry(Part.LineSegment(V(-14.1, 15.7, 0), V(-51.1, 15.7, 0)), False)
sketch6.addGeometry(Part.LineSegment(V(-51.1, 15.7, 0), V(-51.1, 17, 0)), False)
sketch6.addGeometry(Part.LineSegment(V(-51.1, 17, 0), V(-14.1, 17, 0)), False)
sketch6.addGeometry(Part.LineSegment(V(-54.1, 14.9, 0), V(-54.1, 13.5, 0)), False)
sketch6.addGeometry(Part.LineSegment(V(-54.1, 13.5, 0), V(-78.1, 13.5, 0)), False)
sketch6.addGeometry(Part.LineSegment(V(-78.1, 13.5, 0), V(-78.1, 14.9, 0)), False)
sketch6.addGeometry(Part.LineSegment(V(-78.1, 14.9, 0), V(-54.1, 14.9, 0)), False)
sketch6.addGeometry(Part.LineSegment(V(-78.1, 15.7, 0), V(-78.1, 17, 0)), False)
sketch6.addGeometry(Part.LineSegment(V(-78.1, 17, 0), V(-54.1, 17, 0)), False)
sketch6.addGeometry(Part.LineSegment(V(-54.1, 17, 0), V(-54.1, 15.7, 0)), False)
sketch6.addGeometry(Part.LineSegment(V(-54.1, 15.7, 0), V(-78.1, 15.7, 0)), False)
sketch6.addConstraint(Sketcher.Constraint("Coincident", 0, 2, 1, 1))
sketch6.addConstraint(Sketcher.Constraint("Coincident", 1, 2, 2, 1))
sketch6.addConstraint(Sketcher.Constraint("Coincident", 2, 2, 3, 1))
sketch6.addConstraint(Sketcher.Constraint("Coincident", 3, 2, 0, 1))
sketch6.addConstraint(Sketcher.Constraint("Coincident", 4, 2, 5, 1))
sketch6.addConstraint(Sketcher.Constraint("Coincident", 5, 2, 6, 1))
sketch6.addConstraint(Sketcher.Constraint("Coincident", 6, 2, 7, 1))
sketch6.addConstraint(Sketcher.Constraint("Coincident", 7, 2, 4, 1))
sketch6.addConstraint(Sketcher.Constraint("Coincident", 8, 2, 9, 1))
sketch6.addConstraint(Sketcher.Constraint("Coincident", 9, 2, 10, 1))
sketch6.addConstraint(Sketcher.Constraint("Coincident", 10, 2, 11, 1))
sketch6.addConstraint(Sketcher.Constraint("Coincident", 11, 2, 8, 1))
sketch6.addConstraint(Sketcher.Constraint("Coincident", 12, 2, 13, 1))
sketch6.addConstraint(Sketcher.Constraint("Coincident", 13, 2, 14, 1))
sketch6.addConstraint(Sketcher.Constraint("Coincident", 14, 2, 15, 1))
sketch6.addConstraint(Sketcher.Constraint("Coincident", 15, 2, 12, 1))
sketch6.addConstraint(Sketcher.Constraint("Coincident", 16, 2, 17, 1))
sketch6.addConstraint(Sketcher.Constraint("Coincident", 17, 2, 18, 1))
sketch6.addConstraint(Sketcher.Constraint("Coincident", 18, 2, 19, 1))
sketch6.addConstraint(Sketcher.Constraint("Coincident", 19, 2, 16, 1))
sketch6.addConstraint(Sketcher.Constraint("Coincident", 20, 2, 21, 1))
sketch6.addConstraint(Sketcher.Constraint("Coincident", 21, 2, 22, 1))
sketch6.addConstraint(Sketcher.Constraint("Coincident", 22, 2, 23, 1))
sketch6.addConstraint(Sketcher.Constraint("Coincident", 23, 2, 20, 1))
sketch6.addConstraint(Sketcher.Constraint("Coincident", 24, 2, 25, 1))
sketch6.addConstraint(Sketcher.Constraint("Coincident", 25, 2, 26, 1))
sketch6.addConstraint(Sketcher.Constraint("Coincident", 26, 2, 27, 1))
sketch6.addConstraint(Sketcher.Constraint("Coincident", 27, 2, 24, 1))
sketch6.addConstraint(Sketcher.Constraint("Coincident", 28, 2, 29, 1))
sketch6.addConstraint(Sketcher.Constraint("Coincident", 29, 2, 30, 1))
sketch6.addConstraint(Sketcher.Constraint("Coincident", 30, 2, 31, 1))
sketch6.addConstraint(Sketcher.Constraint("Coincident", 31, 2, 28, 1))
sketch6.addConstraint(Sketcher.Constraint("Coincident", 32, 2, 33, 1))
sketch6.addConstraint(Sketcher.Constraint("Coincident", 33, 2, 34, 1))
sketch6.addConstraint(Sketcher.Constraint("Coincident", 34, 2, 35, 1))
sketch6.addConstraint(Sketcher.Constraint("Coincident", 35, 2, 32, 1))
sketch6.addConstraint(Sketcher.Constraint("Coincident", 36, 2, 37, 1))
sketch6.addConstraint(Sketcher.Constraint("Coincident", 37, 2, 38, 1))
sketch6.addConstraint(Sketcher.Constraint("Coincident", 38, 2, 39, 1))
sketch6.addConstraint(Sketcher.Constraint("Coincident", 39, 2, 36, 1))
sketch6.addConstraint(Sketcher.Constraint("Vertical", 0))
sketch6.addConstraint(Sketcher.Constraint("Horizontal", 1))
sketch6.addConstraint(Sketcher.Constraint("Vertical", 2))
sketch6.addConstraint(Sketcher.Constraint("Horizontal", 3))
sketch6.addConstraint(Sketcher.Constraint("Vertical", 4))
sketch6.addConstraint(Sketcher.Constraint("Horizontal", 5))
sketch6.addConstraint(Sketcher.Constraint("Vertical", 6))
sketch6.addConstraint(Sketcher.Constraint("Horizontal", 7))
sketch6.addConstraint(Sketcher.Constraint("Vertical", 8))
sketch6.addConstraint(Sketcher.Constraint("Horizontal", 9))
sketch6.addConstraint(Sketcher.Constraint("Vertical", 10))
sketch6.addConstraint(Sketcher.Constraint("Horizontal", 11))
sketch6.addConstraint(Sketcher.Constraint("Vertical", 12))
sketch6.addConstraint(Sketcher.Constraint("Horizontal", 13))
sketch6.addConstraint(Sketcher.Constraint("Vertical", 14))
sketch6.addConstraint(Sketcher.Constraint("Horizontal", 15))
sketch6.addConstraint(Sketcher.Constraint("Vertical", 16))
sketch6.addConstraint(Sketcher.Constraint("Horizontal", 17))
sketch6.addConstraint(Sketcher.Constraint("Vertical", 18))
sketch6.addConstraint(Sketcher.Constraint("Horizontal", 19))
sketch6.addConstraint(Sketcher.Constraint("Vertical", 20))
sketch6.addConstraint(Sketcher.Constraint("Horizontal", 21))
sketch6.addConstraint(Sketcher.Constraint("Vertical", 22))
sketch6.addConstraint(Sketcher.Constraint("Horizontal", 23))
sketch6.addConstraint(Sketcher.Constraint("Vertical", 24))
sketch6.addConstraint(Sketcher.Constraint("Horizontal", 25))
sketch6.addConstraint(Sketcher.Constraint("Vertical", 26))
sketch6.addConstraint(Sketcher.Constraint("Horizontal", 27))
sketch6.addConstraint(Sketcher.Constraint("Vertical", 28))
sketch6.addConstraint(Sketcher.Constraint("Horizontal", 29))
sketch6.addConstraint(Sketcher.Constraint("Vertical", 30))
sketch6.addConstraint(Sketcher.Constraint("Horizontal", 31))
sketch6.addConstraint(Sketcher.Constraint("Vertical", 32))
sketch6.addConstraint(Sketcher.Constraint("Horizontal", 33))
sketch6.addConstraint(Sketcher.Constraint("Vertical", 34))
sketch6.addConstraint(Sketcher.Constraint("Horizontal", 35))
sketch6.addConstraint(Sketcher.Constraint("Vertical", 36))
sketch6.addConstraint(Sketcher.Constraint("Horizontal", 37))
sketch6.addConstraint(Sketcher.Constraint("Vertical", 38))
sketch6.addConstraint(Sketcher.Constraint("Horizontal", 39))
sketch6.addConstraint(Sketcher.Constraint("Horizontal", 7, 2, 8, 2))
sketch6.addConstraint(Sketcher.Constraint("Horizontal", 5, 2, 10, 2))
sketch6.addConstraint(Sketcher.Constraint("Horizontal", 3, 2, 12, 2))
sketch6.addConstraint(Sketcher.Constraint("Horizontal", 1, 2, 14, 2))
sketch6.addConstraint(Sketcher.Constraint("Horizontal", 13, 2, 16, 2))
sketch6.addConstraint(Sketcher.Constraint("Horizontal", 15, 2, 18, 2))
sketch6.addConstraint(Sketcher.Constraint("Horizontal", 9, 2, 20, 2))
sketch6.addConstraint(Sketcher.Constraint("Horizontal", 11, 2, 22, 2))
sketch6.addConstraint(Sketcher.Constraint("Horizontal", 21, 2, 24, 2))
sketch6.addConstraint(Sketcher.Constraint("Horizontal", 23, 2, 26, 2))
sketch6.addConstraint(Sketcher.Constraint("Horizontal", 17, 2, 28, 2))
sketch6.addConstraint(Sketcher.Constraint("Horizontal", 19, 2, 30, 2))
sketch6.addConstraint(Sketcher.Constraint("Horizontal", 25, 2, 32, 2))
sketch6.addConstraint(Sketcher.Constraint("Horizontal", 27, 2, 34, 2))
sketch6.addConstraint(Sketcher.Constraint("Horizontal", 31, 2, 36, 2))
sketch6.addConstraint(Sketcher.Constraint("Horizontal", 29, 2, 38, 2))
sketch6.addConstraint(Sketcher.Constraint("Vertical", 3, 2, 4, 2))
sketch6.addConstraint(Sketcher.Constraint("Vertical", 2, 2, 5, 2))
sketch6.addConstraint(Sketcher.Constraint("Vertical", 11, 2, 12, 2))
sketch6.addConstraint(Sketcher.Constraint("Vertical", 10, 2, 13, 2))
sketch6.addConstraint(Sketcher.Constraint("Vertical", 19, 2, 20, 2))
sketch6.addConstraint(Sketcher.Constraint("Vertical", 18, 2, 21, 2))
sketch6.addConstraint(Sketcher.Constraint("Vertical", 27, 2, 28, 2))
sketch6.addConstraint(Sketcher.Constraint("Vertical", 26, 2, 29, 2))
sketch6.addConstraint(Sketcher.Constraint("Vertical", 34, 2, 36, 2))
sketch6.addConstraint(Sketcher.Constraint("Vertical", 35, 2, 37, 2))
sketch6.addConstraint(Sketcher.Constraint("Equal", 15, 17))
sketch6.addConstraint(Sketcher.Constraint("Equal", 23, 25))
sketch6.addConstraint(Sketcher.Constraint("Equal", 2, 4))
sketch6.addConstraint(Sketcher.Constraint("DistanceX", 1, 1, 1, 2, Q("13 mm")))
sketch6.addConstraint(Sketcher.Constraint("DistanceX", 9, 2, 9, 1, Q("37 mm")))
sketch6.addConstraint(Sketcher.Constraint("DistanceX", 33, 2, 33, 1, Q("24 mm")))
sketch6.addConstraint(Sketcher.Constraint("DistanceX", 8, 2, 7, 2, Q("3 mm")))
sketch6.addConstraint(Sketcher.Constraint("DistanceX", 16, 2, 13, 2, Q("3 mm")))
sketch6.addConstraint(Sketcher.Constraint("DistanceX", 24, 2, 21, 2, Q("3 mm")))
sketch6.addConstraint(Sketcher.Constraint("DistanceX", 32, 2, 25, 2, Q("3 mm")))
sketch6.addConstraint(Sketcher.Constraint("DistanceY", 0, 1, 0, 2, Q("1.35 mm")))
sketch6.addConstraint(Sketcher.Constraint("DistanceY", 4, 2, 3, 2, Q("0.8 mm")))
sketch6.addConstraint(Sketcher.Constraint("DistanceX", -1, 1, 0, 2, Q("68.853659 mm")))
sketch6.addConstraint(Sketcher.Constraint("DistanceY", -1, 1, 0, 2, Q("17.02887 mm")))
pocket4 = body.newObject("PartDesign::Pocket", "Pocket003")
pocket4.Profile = sketch6
pocket4.Type = "ThroughAll"

sketch7 = body.newObject("Sketcher::SketchObject", "Sketch006")
sketch7.AttachmentSupport = (doc.getObject("XZ_Plane"), [""])
sketch7.MapMode = "FlatFace"
sketch7.AttachmentOffset = App.Placement(V(0, 0, -84.640307), App.Rotation())
sketch7.addGeometry(Part.LineSegment(V(45.9, 21.4, 0), V(45.9, 23.2, 0)), False)
sketch7.addGeometry(Part.LineSegment(V(45.9, 23.2, 0), V(65.9, 23.2, 0)), False)
sketch7.addGeometry(Part.LineSegment(V(65.9, 23.2, 0), V(65.9, 21.4, 0)), False)
sketch7.addGeometry(Part.LineSegment(V(65.9, 21.4, 0), V(45.9, 21.4, 0)), False)
sketch7.addGeometry(Part.LineSegment(V(5.9, 21.4, 0), V(5.9, 23.2, 0)), False)
sketch7.addGeometry(Part.LineSegment(V(5.9, 23.2, 0), V(25.9, 23.2, 0)), False)
sketch7.addGeometry(Part.LineSegment(V(25.9, 23.2, 0), V(25.9, 21.4, 0)), False)
sketch7.addGeometry(Part.LineSegment(V(25.9, 21.4, 0), V(5.9, 21.4, 0)), False)
sketch7.addGeometry(Part.LineSegment(V(-34.1, 21.4, 0), V(-34.1, 23.2, 0)), False)
sketch7.addGeometry(Part.LineSegment(V(-34.1, 23.2, 0), V(-14.1, 23.2, 0)), False)
sketch7.addGeometry(Part.LineSegment(V(-14.1, 23.2, 0), V(-14.1, 21.4, 0)), False)
sketch7.addGeometry(Part.LineSegment(V(-14.1, 21.4, 0), V(-34.1, 21.4, 0)), False)
sketch7.addGeometry(Part.LineSegment(V(-74.1, 21.4, 0), V(-74.1, 23.2, 0)), False)
sketch7.addGeometry(Part.LineSegment(V(-74.1, 23.2, 0), V(-54.1, 23.2, 0)), False)
sketch7.addGeometry(Part.LineSegment(V(-54.1, 23.2, 0), V(-54.1, 21.4, 0)), False)
sketch7.addGeometry(Part.LineSegment(V(-54.1, 21.4, 0), V(-74.1, 21.4, 0)), False)
sketch7.addConstraint(Sketcher.Constraint("Coincident", 0, 2, 1, 1))
sketch7.addConstraint(Sketcher.Constraint("Coincident", 1, 2, 2, 1))
sketch7.addConstraint(Sketcher.Constraint("Coincident", 2, 2, 3, 1))
sketch7.addConstraint(Sketcher.Constraint("Coincident", 3, 2, 0, 1))
sketch7.addConstraint(Sketcher.Constraint("Coincident", 4, 2, 5, 1))
sketch7.addConstraint(Sketcher.Constraint("Coincident", 5, 2, 6, 1))
sketch7.addConstraint(Sketcher.Constraint("Coincident", 6, 2, 7, 1))
sketch7.addConstraint(Sketcher.Constraint("Coincident", 7, 2, 4, 1))
sketch7.addConstraint(Sketcher.Constraint("Coincident", 8, 2, 9, 1))
sketch7.addConstraint(Sketcher.Constraint("Coincident", 9, 2, 10, 1))
sketch7.addConstraint(Sketcher.Constraint("Coincident", 10, 2, 11, 1))
sketch7.addConstraint(Sketcher.Constraint("Coincident", 11, 2, 8, 1))
sketch7.addConstraint(Sketcher.Constraint("Coincident", 12, 2, 13, 1))
sketch7.addConstraint(Sketcher.Constraint("Coincident", 13, 2, 14, 1))
sketch7.addConstraint(Sketcher.Constraint("Coincident", 14, 2, 15, 1))
sketch7.addConstraint(Sketcher.Constraint("Coincident", 15, 2, 12, 1))
sketch7.addConstraint(Sketcher.Constraint("Vertical", 0))
sketch7.addConstraint(Sketcher.Constraint("Horizontal", 1))
sketch7.addConstraint(Sketcher.Constraint("Vertical", 2))
sketch7.addConstraint(Sketcher.Constraint("Horizontal", 3))
sketch7.addConstraint(Sketcher.Constraint("Vertical", 4))
sketch7.addConstraint(Sketcher.Constraint("Horizontal", 5))
sketch7.addConstraint(Sketcher.Constraint("Vertical", 6))
sketch7.addConstraint(Sketcher.Constraint("Horizontal", 7))
sketch7.addConstraint(Sketcher.Constraint("Vertical", 8))
sketch7.addConstraint(Sketcher.Constraint("Horizontal", 9))
sketch7.addConstraint(Sketcher.Constraint("Vertical", 10))
sketch7.addConstraint(Sketcher.Constraint("Horizontal", 11))
sketch7.addConstraint(Sketcher.Constraint("Vertical", 12))
sketch7.addConstraint(Sketcher.Constraint("Horizontal", 13))
sketch7.addConstraint(Sketcher.Constraint("Vertical", 14))
sketch7.addConstraint(Sketcher.Constraint("Horizontal", 15))
sketch7.addConstraint(Sketcher.Constraint("Horizontal", 1, 2, 4, 2))
sketch7.addConstraint(Sketcher.Constraint("Horizontal", 3, 2, 6, 2))
sketch7.addConstraint(Sketcher.Constraint("Horizontal", 5, 2, 8, 2))
sketch7.addConstraint(Sketcher.Constraint("Horizontal", 7, 2, 10, 2))
sketch7.addConstraint(Sketcher.Constraint("Horizontal", 9, 2, 12, 2))
sketch7.addConstraint(Sketcher.Constraint("Horizontal", 11, 2, 14, 2))
sketch7.addConstraint(Sketcher.Constraint("Equal", 3, 5))
sketch7.addConstraint(Sketcher.Constraint("Equal", 7, 9))
sketch7.addConstraint(Sketcher.Constraint("Equal", 11, 13))
sketch7.addConstraint(Sketcher.Constraint("DistanceX", 1, 1, 1, 2, Q("20 mm")))
sketch7.addConstraint(Sketcher.Constraint("DistanceY", 0, 1, 0, 2, Q("1.8 mm")))
sketch7.addConstraint(Sketcher.Constraint("DistanceX", 4, 2, 0, 2, Q("40 mm")))
sketch7.addConstraint(Sketcher.Constraint("DistanceX", 8, 2, 4, 2, Q("40 mm")))
sketch7.addConstraint(Sketcher.Constraint("DistanceX", 12, 2, 8, 2, Q("40 mm")))
sketch7.addConstraint(Sketcher.Constraint("DistanceX", -1, 1, 0, 2, Q("45.853659 mm")))
sketch7.addConstraint(Sketcher.Constraint("DistanceY", -1, 1, 0, 2, Q("23.17887 mm")))
pocket5 = body.newObject("PartDesign::Pocket", "Pocket004")
pocket5.Profile = sketch7
pocket5.Type = "ThroughAll"

sketch8 = body.newObject("Sketcher::SketchObject", "Sketch007")
sketch8.AttachmentSupport = (doc.getObject("XZ_Plane"), [""])
sketch8.MapMode = "FlatFace"
sketch8.AttachmentOffset = App.Placement(V(0, 0, -77.640307), App.Rotation())
sketch8.addGeometry(Part.LineSegment(V(45.9, 14.4, 0), V(45.9, 16.2, 0)), False)
sketch8.addGeometry(Part.LineSegment(V(45.9, 16.2, 0), V(65.9, 16.2, 0)), False)
sketch8.addGeometry(Part.LineSegment(V(65.9, 16.2, 0), V(65.9, 14.4, 0)), False)
sketch8.addGeometry(Part.LineSegment(V(65.9, 14.4, 0), V(45.9, 14.4, 0)), False)
sketch8.addGeometry(Part.LineSegment(V(5.9, 14.4, 0), V(5.9, 16.2, 0)), False)
sketch8.addGeometry(Part.LineSegment(V(5.9, 16.2, 0), V(25.9, 16.2, 0)), False)
sketch8.addGeometry(Part.LineSegment(V(25.9, 16.2, 0), V(25.9, 14.4, 0)), False)
sketch8.addGeometry(Part.LineSegment(V(25.9, 14.4, 0), V(5.9, 14.4, 0)), False)
sketch8.addGeometry(Part.LineSegment(V(-34.1, 14.4, 0), V(-34.1, 16.2, 0)), False)
sketch8.addGeometry(Part.LineSegment(V(-34.1, 16.2, 0), V(-14.1, 16.2, 0)), False)
sketch8.addGeometry(Part.LineSegment(V(-14.1, 16.2, 0), V(-14.1, 14.4, 0)), False)
sketch8.addGeometry(Part.LineSegment(V(-14.1, 14.4, 0), V(-34.1, 14.4, 0)), False)
sketch8.addGeometry(Part.LineSegment(V(-74.1, 14.4, 0), V(-74.1, 16.2, 0)), False)
sketch8.addGeometry(Part.LineSegment(V(-74.1, 16.2, 0), V(-54.1, 16.2, 0)), False)
sketch8.addGeometry(Part.LineSegment(V(-54.1, 16.2, 0), V(-54.1, 14.4, 0)), False)
sketch8.addGeometry(Part.LineSegment(V(-54.1, 14.4, 0), V(-74.1, 14.4, 0)), False)
sketch8.addConstraint(Sketcher.Constraint("Coincident", 0, 2, 1, 1))
sketch8.addConstraint(Sketcher.Constraint("Coincident", 1, 2, 2, 1))
sketch8.addConstraint(Sketcher.Constraint("Coincident", 2, 2, 3, 1))
sketch8.addConstraint(Sketcher.Constraint("Coincident", 3, 2, 0, 1))
sketch8.addConstraint(Sketcher.Constraint("Coincident", 4, 2, 5, 1))
sketch8.addConstraint(Sketcher.Constraint("Coincident", 5, 2, 6, 1))
sketch8.addConstraint(Sketcher.Constraint("Coincident", 6, 2, 7, 1))
sketch8.addConstraint(Sketcher.Constraint("Coincident", 7, 2, 4, 1))
sketch8.addConstraint(Sketcher.Constraint("Coincident", 8, 2, 9, 1))
sketch8.addConstraint(Sketcher.Constraint("Coincident", 9, 2, 10, 1))
sketch8.addConstraint(Sketcher.Constraint("Coincident", 10, 2, 11, 1))
sketch8.addConstraint(Sketcher.Constraint("Coincident", 11, 2, 8, 1))
sketch8.addConstraint(Sketcher.Constraint("Coincident", 12, 2, 13, 1))
sketch8.addConstraint(Sketcher.Constraint("Coincident", 13, 2, 14, 1))
sketch8.addConstraint(Sketcher.Constraint("Coincident", 14, 2, 15, 1))
sketch8.addConstraint(Sketcher.Constraint("Coincident", 15, 2, 12, 1))
sketch8.addConstraint(Sketcher.Constraint("Vertical", 0))
sketch8.addConstraint(Sketcher.Constraint("Horizontal", 1))
sketch8.addConstraint(Sketcher.Constraint("Vertical", 2))
sketch8.addConstraint(Sketcher.Constraint("Horizontal", 3))
sketch8.addConstraint(Sketcher.Constraint("Vertical", 4))
sketch8.addConstraint(Sketcher.Constraint("Horizontal", 5))
sketch8.addConstraint(Sketcher.Constraint("Vertical", 6))
sketch8.addConstraint(Sketcher.Constraint("Horizontal", 7))
sketch8.addConstraint(Sketcher.Constraint("Vertical", 8))
sketch8.addConstraint(Sketcher.Constraint("Horizontal", 9))
sketch8.addConstraint(Sketcher.Constraint("Vertical", 10))
sketch8.addConstraint(Sketcher.Constraint("Horizontal", 11))
sketch8.addConstraint(Sketcher.Constraint("Vertical", 12))
sketch8.addConstraint(Sketcher.Constraint("Horizontal", 13))
sketch8.addConstraint(Sketcher.Constraint("Vertical", 14))
sketch8.addConstraint(Sketcher.Constraint("Horizontal", 15))
sketch8.addConstraint(Sketcher.Constraint("Horizontal", 1, 2, 4, 2))
sketch8.addConstraint(Sketcher.Constraint("Horizontal", 3, 2, 6, 2))
sketch8.addConstraint(Sketcher.Constraint("Horizontal", 5, 2, 8, 2))
sketch8.addConstraint(Sketcher.Constraint("Horizontal", 7, 2, 10, 2))
sketch8.addConstraint(Sketcher.Constraint("Horizontal", 9, 2, 12, 2))
sketch8.addConstraint(Sketcher.Constraint("Horizontal", 11, 2, 14, 2))
sketch8.addConstraint(Sketcher.Constraint("Equal", 3, 5))
sketch8.addConstraint(Sketcher.Constraint("Equal", 7, 9))
sketch8.addConstraint(Sketcher.Constraint("Equal", 11, 13))
sketch8.addConstraint(Sketcher.Constraint("DistanceX", 1, 1, 1, 2, Q("20 mm")))
sketch8.addConstraint(Sketcher.Constraint("DistanceY", 0, 1, 0, 2, Q("1.8 mm")))
sketch8.addConstraint(Sketcher.Constraint("DistanceX", 4, 2, 0, 2, Q("40 mm")))
sketch8.addConstraint(Sketcher.Constraint("DistanceX", 8, 2, 4, 2, Q("40 mm")))
sketch8.addConstraint(Sketcher.Constraint("DistanceX", 12, 2, 8, 2, Q("40 mm")))
sketch8.addConstraint(Sketcher.Constraint("DistanceX", -1, 1, 0, 2, Q("45.853659 mm")))
sketch8.addConstraint(Sketcher.Constraint("DistanceY", -1, 1, 0, 2, Q("16.17887 mm")))
pocket6 = body.newObject("PartDesign::Pocket", "Pocket005")
pocket6.Profile = sketch8
pocket6.Type = "ThroughAll"

doc.recompute()
